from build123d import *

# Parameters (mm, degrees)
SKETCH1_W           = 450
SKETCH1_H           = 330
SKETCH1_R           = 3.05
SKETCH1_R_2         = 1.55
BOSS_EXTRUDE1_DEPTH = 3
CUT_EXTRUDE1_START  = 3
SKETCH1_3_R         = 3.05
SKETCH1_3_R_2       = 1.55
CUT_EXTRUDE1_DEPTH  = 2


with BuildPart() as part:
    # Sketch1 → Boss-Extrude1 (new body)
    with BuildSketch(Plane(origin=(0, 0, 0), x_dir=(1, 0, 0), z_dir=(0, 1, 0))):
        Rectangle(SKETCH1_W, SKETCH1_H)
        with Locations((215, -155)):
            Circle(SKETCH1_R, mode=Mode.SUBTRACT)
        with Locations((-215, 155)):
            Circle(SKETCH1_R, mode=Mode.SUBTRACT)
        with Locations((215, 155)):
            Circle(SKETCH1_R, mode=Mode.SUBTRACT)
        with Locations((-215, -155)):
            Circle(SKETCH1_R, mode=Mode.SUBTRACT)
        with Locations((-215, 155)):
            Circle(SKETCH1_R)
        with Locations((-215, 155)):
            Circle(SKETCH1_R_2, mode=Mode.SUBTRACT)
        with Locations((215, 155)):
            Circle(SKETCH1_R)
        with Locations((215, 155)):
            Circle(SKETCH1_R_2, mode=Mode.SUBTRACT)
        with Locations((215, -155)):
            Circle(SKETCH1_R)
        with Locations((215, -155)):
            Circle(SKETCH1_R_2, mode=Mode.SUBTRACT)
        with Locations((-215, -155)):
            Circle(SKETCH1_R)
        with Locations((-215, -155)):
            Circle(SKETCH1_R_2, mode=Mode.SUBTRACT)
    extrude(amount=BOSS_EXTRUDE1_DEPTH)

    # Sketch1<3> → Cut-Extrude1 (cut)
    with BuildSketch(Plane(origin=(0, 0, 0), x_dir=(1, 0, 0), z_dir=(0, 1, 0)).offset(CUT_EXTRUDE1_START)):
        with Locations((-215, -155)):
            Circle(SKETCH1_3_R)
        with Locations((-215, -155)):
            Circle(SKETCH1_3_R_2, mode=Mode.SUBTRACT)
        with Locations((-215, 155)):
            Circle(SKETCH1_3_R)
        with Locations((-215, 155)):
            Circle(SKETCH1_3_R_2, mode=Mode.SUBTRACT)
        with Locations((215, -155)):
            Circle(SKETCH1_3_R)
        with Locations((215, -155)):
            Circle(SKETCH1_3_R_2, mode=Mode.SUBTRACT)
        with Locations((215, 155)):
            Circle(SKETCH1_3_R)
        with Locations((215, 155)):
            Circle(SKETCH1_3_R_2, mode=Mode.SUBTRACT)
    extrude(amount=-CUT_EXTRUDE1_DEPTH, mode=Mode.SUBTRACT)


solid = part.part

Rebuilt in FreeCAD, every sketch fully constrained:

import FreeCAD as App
import Part
import Sketcher
from FreeCAD import Vector

doc = App.newDocument("Part")
params = doc.addObject("Spreadsheet::Sheet", "Params")
for row, (alias, value) in enumerate([
    ("sketch1_diameter", "3.1 mm"),
    ("sketch1_width", "450 mm"),
    ("sketch1_height", "330 mm"),
    ("pad1_length", "3 mm"),
    ("sketch2_diameter", "6.1 mm"),
    ("sketch2_diameter2", "3.1 mm"),
    ("pocket1_length", "2 mm"),
], start=1):
    params.set(f"A{row}", alias)
    params.set(f"B{row}", "=" + value)
    params.setAlias(f"B{row}", alias)

body = doc.addObject("PartDesign::Body", "Body")

# Sketch on XZ plane
sketch1 = doc.addObject("Sketcher::SketchObject", "Sketch")
body.addObject(sketch1)
sketch1.AttachmentSupport = (doc.XZ_Plane, [""])
sketch1.MapMode = "FlatFace"
sketch1.addGeometry([
    Part.LineSegment(Vector(-225, -165, 0), Vector(-225, 165, 0)),  # 0
    Part.LineSegment(Vector(-225, 165, 0), Vector(225, 165, 0)),  # 1
    Part.LineSegment(Vector(225, 165, 0), Vector(225, -165, 0)),  # 2
    Part.LineSegment(Vector(225, -165, 0), Vector(-225, -165, 0)),  # 3
    Part.Circle(Vector(-215, 155, 0), Vector(0, 0, 1), 1.6),  # 4
    Part.Circle(Vector(215, 155, 0), Vector(0, 0, 1), 1.6),  # 5
    Part.Circle(Vector(-215, -155, 0), Vector(0, 0, 1), 1.6),  # 6
    Part.Circle(Vector(215, -155, 0), Vector(0, 0, 1), 1.6),  # 7
], False)
sketch1.addConstraint([
    Sketcher.Constraint("Coincident", 0, 2, 1, 1),
    Sketcher.Constraint("Coincident", 1, 2, 2, 1),
    Sketcher.Constraint("Coincident", 2, 2, 3, 1),
    Sketcher.Constraint("Coincident", 3, 2, 0, 1),
    Sketcher.Constraint("Vertical", 0),
    Sketcher.Constraint("Horizontal", 1),
    Sketcher.Constraint("Vertical", 2),
    Sketcher.Constraint("Horizontal", 3),
    Sketcher.Constraint("Equal", 4, 5),
    Sketcher.Constraint("Equal", 5, 6),
    Sketcher.Constraint("Equal", 6, 7),
    Sketcher.Constraint("Symmetric", 5, 3, 6, 3, -1, 1),
    Sketcher.Constraint("Symmetric", 4, 3, 7, 3, -1, 1),
    Sketcher.Constraint("Symmetric", 0, 2, 2, 2, -1, 1),
    Sketcher.Constraint("Symmetric", 4, 3, 5, 3, -2),
    Sketcher.Constraint("Diameter", 4, 3.1),
    Sketcher.Constraint("DistanceX", 1, 1, 1, 2, 450.0),
    Sketcher.Constraint("DistanceY", 0, 1, 0, 2, 330.0),
    Sketcher.Constraint("DistanceX", 4, 3, -1, 1, 215.0),
    Sketcher.Constraint("DistanceY", -1, 1, 4, 3, 155.0),
])
sketch1.setExpression("Constraints[15]", "Params.sketch1_diameter")
sketch1.setExpression("Constraints[16]", "Params.sketch1_width")
sketch1.setExpression("Constraints[17]", "Params.sketch1_height")
pad1 = doc.addObject("PartDesign::Pad", "Pad")
body.addObject(pad1)
pad1.Profile = sketch1
pad1.setExpression("Length", "Params.pad1_length")
pad1.Reversed = True

# Sketch on XZ plane
sketch2 = doc.addObject("Sketcher::SketchObject", "Sketch001")
body.addObject(sketch2)
sketch2.AttachmentSupport = (doc.XZ_Plane, [""])
sketch2.MapMode = "FlatFace"
sketch2.AttachmentOffset = App.Placement(Vector(0, 0, -3), App.Rotation())
sketch2.addGeometry([
    Part.Circle(Vector(-215, 155, 0), Vector(0, 0, 1), 3),  # 0
    Part.Circle(Vector(-215, 155, 0), Vector(0, 0, 1), 1.6),  # 1
    Part.Circle(Vector(-215, -155, 0), Vector(0, 0, 1), 3),  # 2
    Part.Circle(Vector(-215, -155, 0), Vector(0, 0, 1), 1.6),  # 3
    Part.Circle(Vector(215, 155, 0), Vector(0, 0, 1), 3),  # 4
    Part.Circle(Vector(215, 155, 0), Vector(0, 0, 1), 1.6),  # 5
    Part.Circle(Vector(215, -155, 0), Vector(0, 0, 1), 3),  # 6
    Part.Circle(Vector(215, -155, 0), Vector(0, 0, 1), 1.6),  # 7
], False)
sketch2.addConstraint([
    Sketcher.Constraint("Coincident", 1, 3, 0, 3),
    Sketcher.Constraint("Coincident", 3, 3, 2, 3),
    Sketcher.Constraint("Coincident", 5, 3, 4, 3),
    Sketcher.Constraint("Coincident", 7, 3, 6, 3),
    Sketcher.Constraint("Equal", 0, 2),
    Sketcher.Constraint("Equal", 1, 3),
    Sketcher.Constraint("Equal", 2, 4),
    Sketcher.Constraint("Equal", 3, 5),
    Sketcher.Constraint("Equal", 4, 6),
    Sketcher.Constraint("Equal", 5, 7),
    Sketcher.Constraint("Symmetric", 2, 3, 4, 3, -1, 1),
    Sketcher.Constraint("Symmetric", 0, 3, 6, 3, -1, 1),
    Sketcher.Constraint("Symmetric", 0, 3, 4, 3, -2),
    Sketcher.Constraint("Diameter", 0, 6.1),
    Sketcher.Constraint("Diameter", 1, 3.1),
    Sketcher.Constraint("DistanceX", 0, 3, -1, 1, 215.0),
    Sketcher.Constraint("DistanceY", -1, 1, 0, 3, 155.0),
])
sketch2.setExpression("Constraints[13]", "Params.sketch2_diameter")
sketch2.setExpression("Constraints[14]", "Params.sketch2_diameter2")
pocket1 = doc.addObject("PartDesign::Pocket", "Pocket")
body.addObject(pocket1)
pocket1.Profile = sketch2
pocket1.setExpression("Length", "Params.pocket1_length")
pocket1.Reversed = True

doc.recompute()
